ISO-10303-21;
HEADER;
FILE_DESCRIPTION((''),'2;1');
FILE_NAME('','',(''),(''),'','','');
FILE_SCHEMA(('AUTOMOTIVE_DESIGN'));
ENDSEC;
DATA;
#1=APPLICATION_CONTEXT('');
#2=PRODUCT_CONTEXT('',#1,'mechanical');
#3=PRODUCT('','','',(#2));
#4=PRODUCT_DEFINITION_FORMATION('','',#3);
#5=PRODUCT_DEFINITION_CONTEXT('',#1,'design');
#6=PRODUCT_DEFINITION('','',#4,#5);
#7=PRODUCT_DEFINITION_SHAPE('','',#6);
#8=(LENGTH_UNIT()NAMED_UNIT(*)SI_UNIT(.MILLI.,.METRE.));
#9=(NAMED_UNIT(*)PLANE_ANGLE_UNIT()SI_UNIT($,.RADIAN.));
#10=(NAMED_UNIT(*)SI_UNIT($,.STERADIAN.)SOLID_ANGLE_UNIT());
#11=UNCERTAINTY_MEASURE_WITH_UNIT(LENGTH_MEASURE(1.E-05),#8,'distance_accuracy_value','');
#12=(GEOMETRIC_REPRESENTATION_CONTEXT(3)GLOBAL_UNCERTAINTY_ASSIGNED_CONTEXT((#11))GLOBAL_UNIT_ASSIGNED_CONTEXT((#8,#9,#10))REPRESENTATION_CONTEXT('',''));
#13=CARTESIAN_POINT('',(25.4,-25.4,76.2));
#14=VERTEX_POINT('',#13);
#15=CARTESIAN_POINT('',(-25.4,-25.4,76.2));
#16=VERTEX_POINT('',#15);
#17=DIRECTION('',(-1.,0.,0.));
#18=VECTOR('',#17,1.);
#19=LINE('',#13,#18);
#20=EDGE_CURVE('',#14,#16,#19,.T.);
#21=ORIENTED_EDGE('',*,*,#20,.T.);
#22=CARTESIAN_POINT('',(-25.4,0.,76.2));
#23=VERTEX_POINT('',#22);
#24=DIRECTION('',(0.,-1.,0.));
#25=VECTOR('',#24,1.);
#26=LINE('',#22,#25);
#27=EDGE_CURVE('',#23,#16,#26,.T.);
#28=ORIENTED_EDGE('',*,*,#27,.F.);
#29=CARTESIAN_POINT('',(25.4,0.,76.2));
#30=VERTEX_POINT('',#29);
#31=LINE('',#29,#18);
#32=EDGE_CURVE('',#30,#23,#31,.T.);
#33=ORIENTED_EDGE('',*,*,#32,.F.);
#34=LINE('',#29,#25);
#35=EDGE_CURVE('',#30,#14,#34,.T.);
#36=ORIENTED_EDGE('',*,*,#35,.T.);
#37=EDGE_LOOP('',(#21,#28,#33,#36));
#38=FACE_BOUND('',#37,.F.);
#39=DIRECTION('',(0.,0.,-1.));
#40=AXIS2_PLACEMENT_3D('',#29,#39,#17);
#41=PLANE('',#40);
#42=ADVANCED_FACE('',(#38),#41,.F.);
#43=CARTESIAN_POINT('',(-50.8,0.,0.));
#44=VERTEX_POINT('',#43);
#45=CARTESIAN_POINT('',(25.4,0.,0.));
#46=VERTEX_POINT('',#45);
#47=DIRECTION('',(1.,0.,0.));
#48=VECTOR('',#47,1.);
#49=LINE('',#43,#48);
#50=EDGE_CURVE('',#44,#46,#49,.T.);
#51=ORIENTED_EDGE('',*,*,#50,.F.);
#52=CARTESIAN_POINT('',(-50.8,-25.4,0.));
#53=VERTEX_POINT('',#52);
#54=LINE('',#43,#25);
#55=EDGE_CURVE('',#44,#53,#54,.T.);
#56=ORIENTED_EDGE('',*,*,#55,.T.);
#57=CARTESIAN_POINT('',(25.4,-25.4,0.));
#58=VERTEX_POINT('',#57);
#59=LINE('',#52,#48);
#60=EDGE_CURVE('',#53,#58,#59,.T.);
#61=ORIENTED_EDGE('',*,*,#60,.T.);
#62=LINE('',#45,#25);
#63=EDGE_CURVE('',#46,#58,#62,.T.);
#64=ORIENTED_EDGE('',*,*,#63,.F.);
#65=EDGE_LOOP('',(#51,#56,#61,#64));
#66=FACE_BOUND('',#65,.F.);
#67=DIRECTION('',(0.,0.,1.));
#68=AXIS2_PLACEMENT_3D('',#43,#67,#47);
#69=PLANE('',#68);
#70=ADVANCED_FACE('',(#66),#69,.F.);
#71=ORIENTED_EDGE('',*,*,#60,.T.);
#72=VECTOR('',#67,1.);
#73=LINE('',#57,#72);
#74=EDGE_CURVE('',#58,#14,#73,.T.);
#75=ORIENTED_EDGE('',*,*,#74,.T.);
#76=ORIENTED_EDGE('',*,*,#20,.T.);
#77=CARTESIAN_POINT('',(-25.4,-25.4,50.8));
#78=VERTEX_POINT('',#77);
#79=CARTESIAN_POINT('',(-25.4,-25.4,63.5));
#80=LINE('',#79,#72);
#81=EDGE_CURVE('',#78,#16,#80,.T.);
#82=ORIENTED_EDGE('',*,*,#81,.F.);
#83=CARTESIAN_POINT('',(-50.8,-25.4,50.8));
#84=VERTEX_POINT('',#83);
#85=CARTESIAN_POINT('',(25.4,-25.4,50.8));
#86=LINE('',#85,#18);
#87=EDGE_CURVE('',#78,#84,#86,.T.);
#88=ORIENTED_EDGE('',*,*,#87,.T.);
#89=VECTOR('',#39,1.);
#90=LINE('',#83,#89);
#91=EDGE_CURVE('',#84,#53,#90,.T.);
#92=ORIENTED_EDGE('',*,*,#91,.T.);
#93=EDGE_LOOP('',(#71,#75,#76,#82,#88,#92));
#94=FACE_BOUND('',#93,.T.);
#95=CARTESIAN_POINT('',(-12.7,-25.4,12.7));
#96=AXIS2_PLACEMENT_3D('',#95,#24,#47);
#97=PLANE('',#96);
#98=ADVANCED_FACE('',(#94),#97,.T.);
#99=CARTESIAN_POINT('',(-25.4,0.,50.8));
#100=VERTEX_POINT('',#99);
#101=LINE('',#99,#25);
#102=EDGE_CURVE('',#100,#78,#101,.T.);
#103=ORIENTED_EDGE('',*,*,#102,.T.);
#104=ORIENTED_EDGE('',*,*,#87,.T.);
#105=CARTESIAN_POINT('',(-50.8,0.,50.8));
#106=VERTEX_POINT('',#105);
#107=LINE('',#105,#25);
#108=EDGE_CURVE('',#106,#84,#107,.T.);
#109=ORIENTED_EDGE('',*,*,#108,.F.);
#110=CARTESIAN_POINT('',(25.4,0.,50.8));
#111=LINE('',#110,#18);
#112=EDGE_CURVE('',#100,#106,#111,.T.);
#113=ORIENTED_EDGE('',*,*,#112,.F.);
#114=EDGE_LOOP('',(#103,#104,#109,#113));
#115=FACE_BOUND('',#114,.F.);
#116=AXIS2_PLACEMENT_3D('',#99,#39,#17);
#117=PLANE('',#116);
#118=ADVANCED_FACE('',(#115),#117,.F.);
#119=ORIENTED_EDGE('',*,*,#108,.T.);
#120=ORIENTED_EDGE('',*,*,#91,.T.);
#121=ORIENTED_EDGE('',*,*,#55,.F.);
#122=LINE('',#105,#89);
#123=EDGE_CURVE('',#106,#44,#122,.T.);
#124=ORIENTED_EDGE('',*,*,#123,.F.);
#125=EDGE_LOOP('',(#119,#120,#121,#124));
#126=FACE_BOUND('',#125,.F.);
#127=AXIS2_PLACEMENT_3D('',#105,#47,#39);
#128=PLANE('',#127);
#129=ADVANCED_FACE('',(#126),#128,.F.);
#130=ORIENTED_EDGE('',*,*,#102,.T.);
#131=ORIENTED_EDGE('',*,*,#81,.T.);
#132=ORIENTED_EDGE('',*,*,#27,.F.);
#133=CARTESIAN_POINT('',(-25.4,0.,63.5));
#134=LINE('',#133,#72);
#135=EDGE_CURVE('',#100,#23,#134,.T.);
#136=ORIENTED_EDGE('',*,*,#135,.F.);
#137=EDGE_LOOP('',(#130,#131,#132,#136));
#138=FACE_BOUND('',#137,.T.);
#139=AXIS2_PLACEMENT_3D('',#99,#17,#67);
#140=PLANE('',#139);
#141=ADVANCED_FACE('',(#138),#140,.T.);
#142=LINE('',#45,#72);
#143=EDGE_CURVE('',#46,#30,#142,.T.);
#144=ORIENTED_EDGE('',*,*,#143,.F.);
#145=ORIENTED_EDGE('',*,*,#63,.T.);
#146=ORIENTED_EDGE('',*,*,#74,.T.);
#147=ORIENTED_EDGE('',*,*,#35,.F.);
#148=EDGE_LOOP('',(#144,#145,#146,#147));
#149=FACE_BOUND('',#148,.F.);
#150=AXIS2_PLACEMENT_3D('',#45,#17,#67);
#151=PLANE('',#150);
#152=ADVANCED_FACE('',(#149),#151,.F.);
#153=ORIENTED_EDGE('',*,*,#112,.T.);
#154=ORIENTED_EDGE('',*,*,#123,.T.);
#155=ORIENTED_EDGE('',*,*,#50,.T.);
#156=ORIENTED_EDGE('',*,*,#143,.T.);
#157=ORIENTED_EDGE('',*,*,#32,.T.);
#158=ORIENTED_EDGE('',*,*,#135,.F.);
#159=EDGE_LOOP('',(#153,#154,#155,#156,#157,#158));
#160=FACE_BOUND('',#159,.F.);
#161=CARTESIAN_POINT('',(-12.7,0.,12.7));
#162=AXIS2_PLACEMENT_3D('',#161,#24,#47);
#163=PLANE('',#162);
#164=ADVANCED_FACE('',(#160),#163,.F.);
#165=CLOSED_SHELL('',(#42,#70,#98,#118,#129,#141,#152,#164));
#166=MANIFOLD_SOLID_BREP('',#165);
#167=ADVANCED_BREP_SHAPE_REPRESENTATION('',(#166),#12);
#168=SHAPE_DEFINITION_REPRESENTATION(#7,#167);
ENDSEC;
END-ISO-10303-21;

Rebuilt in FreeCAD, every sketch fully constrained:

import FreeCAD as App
import Part
import Sketcher

V = App.Vector
Q = App.Units.Quantity

doc = App.newDocument("Part")
body = doc.addObject("PartDesign::Body", "Body")

# Sketch on XZ plane
sketch1 = doc.addObject("Sketcher::SketchObject", "Sketch")
body.addObject(sketch1)
sketch1.AttachmentSupport = (doc.XZ_Plane, [""])
sketch1.MapMode = "FlatFace"
sketch1.addGeometry(Part.LineSegment(V(25, 0, 0), V(25, 76, 0)), False)
sketch1.addGeometry(Part.LineSegment(V(25, 76, 0), V(-25, 76, 0)), False)
sketch1.addGeometry(Part.LineSegment(V(-25, 76, 0), V(-25, 51, 0)), False)
sketch1.addGeometry(Part.LineSegment(V(-25, 51, 0), V(-51, 51, 0)), False)
sketch1.addGeometry(Part.LineSegment(V(-51, 51, 0), V(-51, 0, 0)), False)
sketch1.addGeometry(Part.LineSegment(V(-51, 0, 0), V(25, 0, 0)), False)
sketch1.addConstraint(Sketcher.Constraint("Coincident", 0, 2, 1, 1))
sketch1.addConstraint(Sketcher.Constraint("Coincident", 1, 2, 2, 1))
sketch1.addConstraint(Sketcher.Constraint("Coincident", 2, 2, 3, 1))
sketch1.addConstraint(Sketcher.Constraint("Coincident", 3, 2, 4, 1))
sketch1.addConstraint(Sketcher.Constraint("Coincident", 4, 2, 5, 1))
sketch1.addConstraint(Sketcher.Constraint("Coincident", 5, 2, 0, 1))
sketch1.addConstraint(Sketcher.Constraint("Vertical", 0))
sketch1.addConstraint(Sketcher.Constraint("Horizontal", 1))
sketch1.addConstraint(Sketcher.Constraint("Vertical", 2))
sketch1.addConstraint(Sketcher.Constraint("Horizontal", 3))
sketch1.addConstraint(Sketcher.Constraint("Vertical", 4))
sketch1.addConstraint(Sketcher.Constraint("Horizontal", 5))
sketch1.addConstraint(Sketcher.Constraint("PointOnObject", 4, 2, -1))
sketch1.addConstraint(Sketcher.Constraint("Equal", 5, 0))
sketch1.addConstraint(Sketcher.Constraint("Equal", 3, 2))
sketch1.addConstraint(Sketcher.Constraint("DistanceX", 1, 2, 1, 1, Q("2 in")))
sketch1.addConstraint(Sketcher.Constraint("DistanceX", 3, 2, 3, 1, Q("1 in")))
sketch1.addConstraint(Sketcher.Constraint("DistanceX", -1, 1, 0, 2, Q("1 in")))
pad1 = doc.addObject("PartDesign::Pad", "Pad")
body.addObject(pad1)
pad1.Profile = sketch1
pad1.Length = Q("1 in")

doc.recompute()
